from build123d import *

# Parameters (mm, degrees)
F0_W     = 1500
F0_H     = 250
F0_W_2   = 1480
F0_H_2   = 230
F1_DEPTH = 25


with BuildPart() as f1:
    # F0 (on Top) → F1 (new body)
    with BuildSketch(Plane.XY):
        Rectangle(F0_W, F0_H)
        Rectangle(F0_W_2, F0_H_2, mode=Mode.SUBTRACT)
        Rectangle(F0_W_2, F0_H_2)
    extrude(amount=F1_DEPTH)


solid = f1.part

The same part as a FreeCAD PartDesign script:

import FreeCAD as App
import Part
import Sketcher
from FreeCAD import Vector
Q = App.Units.Quantity

doc = App.newDocument("Part")
body = doc.addObject("PartDesign::Body", "Body")

# Sketch on XY plane
sketch1 = body.newObject("Sketcher::SketchObject", "Sketch")
sketch1.AttachmentSupport = (doc.getObject("XY_Plane"), [""])
sketch1.MapMode = "FlatFace"
sketch1.addGeometry(Part.LineSegment(Vector(-750, 125, 0), Vector(-750, -125, 0)), False)
sketch1.addGeometry(Part.LineSegment(Vector(-750, -125, 0), Vector(750, -125, 0)), False)
sketch1.addGeometry(Part.LineSegment(Vector(750, -125, 0), Vector(750, 125, 0)), False)
sketch1.addGeometry(Part.LineSegment(Vector(750, 125, 0), Vector(-750, 125, 0)), False)
sketch1.addConstraint(Sketcher.Constraint("Coincident", 0, 2, 1, 1))
sketch1.addConstraint(Sketcher.Constraint("Coincident", 1, 2, 2, 1))
sketch1.addConstraint(Sketcher.Constraint("Coincident", 2, 2, 3, 1))
sketch1.addConstraint(Sketcher.Constraint("Coincident", 3, 2, 0, 1))
sketch1.addConstraint(Sketcher.Constraint("Vertical", 0))
sketch1.addConstraint(Sketcher.Constraint("Horizontal", 1))
sketch1.addConstraint(Sketcher.Constraint("Vertical", 2))
sketch1.addConstraint(Sketcher.Constraint("Horizontal", 3))
sketch1.addConstraint(Sketcher.Constraint("Symmetric", 0, 2, 2, 2, -1, 1))
sketch1.addConstraint(Sketcher.Constraint("DistanceX", 1, 1, 1, 2, Q("1500 mm")))
sketch1.addConstraint(Sketcher.Constraint("DistanceY", 0, 2, 0, 1, Q("250 mm")))
pad1 = body.newObject("PartDesign::Pad", "Pad")
pad1.Profile = sketch1
pad1.Length = 25

doc.recompute()
